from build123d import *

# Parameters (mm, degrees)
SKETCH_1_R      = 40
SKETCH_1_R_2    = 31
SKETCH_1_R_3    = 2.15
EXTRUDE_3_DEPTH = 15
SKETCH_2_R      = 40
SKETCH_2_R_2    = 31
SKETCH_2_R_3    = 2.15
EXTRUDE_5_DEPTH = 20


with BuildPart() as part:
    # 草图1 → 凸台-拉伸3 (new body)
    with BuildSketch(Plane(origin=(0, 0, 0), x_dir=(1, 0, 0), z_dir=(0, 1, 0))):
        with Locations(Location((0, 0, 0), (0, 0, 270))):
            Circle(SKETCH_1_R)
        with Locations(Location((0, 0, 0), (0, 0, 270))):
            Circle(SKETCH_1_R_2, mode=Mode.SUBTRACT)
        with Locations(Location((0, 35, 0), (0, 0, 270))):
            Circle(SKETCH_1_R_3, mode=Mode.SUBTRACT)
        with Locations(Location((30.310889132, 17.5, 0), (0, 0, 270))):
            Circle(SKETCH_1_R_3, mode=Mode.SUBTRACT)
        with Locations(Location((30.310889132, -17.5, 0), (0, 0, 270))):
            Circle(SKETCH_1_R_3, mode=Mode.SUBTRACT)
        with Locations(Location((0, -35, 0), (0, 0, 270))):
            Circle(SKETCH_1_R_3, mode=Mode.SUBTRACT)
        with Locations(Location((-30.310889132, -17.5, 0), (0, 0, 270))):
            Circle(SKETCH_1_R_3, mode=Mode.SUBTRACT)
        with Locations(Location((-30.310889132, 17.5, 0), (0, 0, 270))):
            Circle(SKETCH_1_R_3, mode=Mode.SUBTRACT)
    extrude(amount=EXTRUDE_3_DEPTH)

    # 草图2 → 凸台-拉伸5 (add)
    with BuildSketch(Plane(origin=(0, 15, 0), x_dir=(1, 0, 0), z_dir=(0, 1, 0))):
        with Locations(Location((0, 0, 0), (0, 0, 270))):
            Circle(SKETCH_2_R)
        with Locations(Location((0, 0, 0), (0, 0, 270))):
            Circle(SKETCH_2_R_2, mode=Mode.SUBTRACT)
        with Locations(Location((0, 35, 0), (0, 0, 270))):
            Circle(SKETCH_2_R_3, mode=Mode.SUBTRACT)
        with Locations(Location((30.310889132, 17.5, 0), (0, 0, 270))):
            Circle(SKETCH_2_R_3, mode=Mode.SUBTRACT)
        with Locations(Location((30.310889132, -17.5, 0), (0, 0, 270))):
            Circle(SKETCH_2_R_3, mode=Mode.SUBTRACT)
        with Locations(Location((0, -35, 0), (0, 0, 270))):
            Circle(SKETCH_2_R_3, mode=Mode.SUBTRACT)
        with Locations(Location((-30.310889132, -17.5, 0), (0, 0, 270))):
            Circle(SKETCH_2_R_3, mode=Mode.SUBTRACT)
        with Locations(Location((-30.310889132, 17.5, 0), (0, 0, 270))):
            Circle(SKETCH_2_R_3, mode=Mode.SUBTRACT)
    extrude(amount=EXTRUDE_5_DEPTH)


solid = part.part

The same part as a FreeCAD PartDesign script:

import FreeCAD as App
import Part
import Sketcher
from FreeCAD import Vector

doc = App.newDocument("Part")
body = doc.addObject("PartDesign::Body", "Body")

sketch1 = body.newObject("Sketcher::SketchObject", "Sketch")
sketch1.AttachmentSupport = (doc.getObject("XZ_Plane"), [""])
sketch1.MapMode = "FlatFace"
sketch1.addGeometry(Part.Circle(Vector(0, 0, 0), Vector(0, 0, 1), 40), False)
sketch1.addGeometry(Part.Circle(Vector(-30.3, -17.5, 0), Vector(0, 0, 1), 2.1), False)
sketch1.addGeometry(Part.Circle(Vector(0, -35, 0), Vector(0, 0, 1), 2.1), False)
sketch1.addGeometry(Part.Circle(Vector(-30.3, 17.5, 0), Vector(0, 0, 1), 2.1), False)
sketch1.addGeometry(Part.Circle(Vector(30.3, -17.5, 0), Vector(0, 0, 1), 2.1), False)
sketch1.addGeometry(Part.Circle(Vector(0, 0, 0), Vector(0, 0, 1), 31), False)
sketch1.addGeometry(Part.Circle(Vector(0, 35, 0), Vector(0, 0, 1), 2.1), False)
sketch1.addGeometry(Part.Circle(Vector(30.3, 17.5, 0), Vector(0, 0, 1), 2.1), False)
sketch1.addConstraint(Sketcher.Constraint("Coincident", 0, 3, -1, 1))
sketch1.addConstraint(Sketcher.Constraint("Coincident", 5, 3, -1, 1))
sketch1.addConstraint(Sketcher.Constraint("Equal", 1, 2))
sketch1.addConstraint(Sketcher.Constraint("Equal", 2, 3))
sketch1.addConstraint(Sketcher.Constraint("Equal", 3, 4))
sketch1.addConstraint(Sketcher.Constraint("Equal", 4, 6))
sketch1.addConstraint(Sketcher.Constraint("Equal", 6, 7))
sketch1.addConstraint(Sketcher.Constraint("Symmetric", 3, 3, 4, 3, -1, 1))
sketch1.addConstraint(Sketcher.Constraint("Symmetric", 2, 3, 6, 3, -1, 1))
sketch1.addConstraint(Sketcher.Constraint("Symmetric", 1, 3, 7, 3, -1, 1))
sketch1.addConstraint(Sketcher.Constraint("Symmetric", 1, 3, 4, 3, -2))
sketch1.addConstraint(Sketcher.Constraint("PointOnObject", 2, 3, -2))
sketch1.addConstraint(Sketcher.Constraint("Diameter", 0, 80.0))
sketch1.addConstraint(Sketcher.Constraint("Diameter", 5, 62.0))
sketch1.addConstraint(Sketcher.Constraint("Diameter", 1, 4.3))
sketch1.addConstraint(Sketcher.Constraint("DistanceY", 2, 3, -1, 1, 35.0))
sketch1.addConstraint(Sketcher.Constraint("DistanceY", 1, 3, 3, 3, 35.0))
sketch1.addConstraint(Sketcher.Constraint("DistanceX", 1, 3, -1, 1, 30.310889))
pad1 = body.newObject("PartDesign::Pad", "Pad")
pad1.Profile = sketch1
pad1.Length = 15
pad1.Reversed = True

sketch2 = body.newObject("Sketcher::SketchObject", "Sketch001")
sketch2.AttachmentSupport = (doc.getObject("XZ_Plane"), [""])
sketch2.MapMode = "FlatFace"
sketch2.AttachmentOffset = App.Placement(Vector(0, 0, -15), App.Rotation())
sketch2.addGeometry(Part.Circle(Vector(0, 0, 0), Vector(0, 0, 1), 40), False)
sketch2.addGeometry(Part.Circle(Vector(-30.3, -17.5, 0), Vector(0, 0, 1), 2.1), False)
sketch2.addGeometry(Part.Circle(Vector(0, -35, 0), Vector(0, 0, 1), 2.1), False)
sketch2.addGeometry(Part.Circle(Vector(-30.3, 17.5, 0), Vector(0, 0, 1), 2.1), False)
sketch2.addGeometry(Part.Circle(Vector(30.3, -17.5, 0), Vector(0, 0, 1), 2.1), False)
sketch2.addGeometry(Part.Circle(Vector(0, 0, 0), Vector(0, 0, 1), 31), False)
sketch2.addGeometry(Part.Circle(Vector(0, 35, 0), Vector(0, 0, 1), 2.1), False)
sketch2.addGeometry(Part.Circle(Vector(30.3, 17.5, 0), Vector(0, 0, 1), 2.1), False)
sketch2.addConstraint(Sketcher.Constraint("Coincident", 0, 3, -1, 1))
sketch2.addConstraint(Sketcher.Constraint("Coincident", 5, 3, -1, 1))
sketch2.addConstraint(Sketcher.Constraint("Equal", 1, 2))
sketch2.addConstraint(Sketcher.Constraint("Equal", 2, 3))
sketch2.addConstraint(Sketcher.Constraint("Equal", 3, 4))
sketch2.addConstraint(Sketcher.Constraint("Equal", 4, 6))
sketch2.addConstraint(Sketcher.Constraint("Equal", 6, 7))
sketch2.addConstraint(Sketcher.Constraint("Symmetric", 3, 3, 4, 3, -1, 1))
sketch2.addConstraint(Sketcher.Constraint("Symmetric", 2, 3, 6, 3, -1, 1))
sketch2.addConstraint(Sketcher.Constraint("Symmetric", 1, 3, 7, 3, -1, 1))
sketch2.addConstraint(Sketcher.Constraint("Symmetric", 1, 3, 4, 3, -2))
sketch2.addConstraint(Sketcher.Constraint("PointOnObject", 2, 3, -2))
sketch2.addConstraint(Sketcher.Constraint("Diameter", 0, 80.0))
sketch2.addConstraint(Sketcher.Constraint("Diameter", 5, 62.0))
sketch2.addConstraint(Sketcher.Constraint("Diameter", 1, 4.3))
sketch2.addConstraint(Sketcher.Constraint("DistanceY", 2, 3, -1, 1, 35.0))
sketch2.addConstraint(Sketcher.Constraint("DistanceY", 1, 3, 3, 3, 35.0))
sketch2.addConstraint(Sketcher.Constraint("DistanceX", 1, 3, -1, 1, 30.310889))
pad2 = body.newObject("PartDesign::Pad", "Pad001")
pad2.Profile = sketch2
pad2.Length = 20
pad2.Reversed = True

doc.recompute()
